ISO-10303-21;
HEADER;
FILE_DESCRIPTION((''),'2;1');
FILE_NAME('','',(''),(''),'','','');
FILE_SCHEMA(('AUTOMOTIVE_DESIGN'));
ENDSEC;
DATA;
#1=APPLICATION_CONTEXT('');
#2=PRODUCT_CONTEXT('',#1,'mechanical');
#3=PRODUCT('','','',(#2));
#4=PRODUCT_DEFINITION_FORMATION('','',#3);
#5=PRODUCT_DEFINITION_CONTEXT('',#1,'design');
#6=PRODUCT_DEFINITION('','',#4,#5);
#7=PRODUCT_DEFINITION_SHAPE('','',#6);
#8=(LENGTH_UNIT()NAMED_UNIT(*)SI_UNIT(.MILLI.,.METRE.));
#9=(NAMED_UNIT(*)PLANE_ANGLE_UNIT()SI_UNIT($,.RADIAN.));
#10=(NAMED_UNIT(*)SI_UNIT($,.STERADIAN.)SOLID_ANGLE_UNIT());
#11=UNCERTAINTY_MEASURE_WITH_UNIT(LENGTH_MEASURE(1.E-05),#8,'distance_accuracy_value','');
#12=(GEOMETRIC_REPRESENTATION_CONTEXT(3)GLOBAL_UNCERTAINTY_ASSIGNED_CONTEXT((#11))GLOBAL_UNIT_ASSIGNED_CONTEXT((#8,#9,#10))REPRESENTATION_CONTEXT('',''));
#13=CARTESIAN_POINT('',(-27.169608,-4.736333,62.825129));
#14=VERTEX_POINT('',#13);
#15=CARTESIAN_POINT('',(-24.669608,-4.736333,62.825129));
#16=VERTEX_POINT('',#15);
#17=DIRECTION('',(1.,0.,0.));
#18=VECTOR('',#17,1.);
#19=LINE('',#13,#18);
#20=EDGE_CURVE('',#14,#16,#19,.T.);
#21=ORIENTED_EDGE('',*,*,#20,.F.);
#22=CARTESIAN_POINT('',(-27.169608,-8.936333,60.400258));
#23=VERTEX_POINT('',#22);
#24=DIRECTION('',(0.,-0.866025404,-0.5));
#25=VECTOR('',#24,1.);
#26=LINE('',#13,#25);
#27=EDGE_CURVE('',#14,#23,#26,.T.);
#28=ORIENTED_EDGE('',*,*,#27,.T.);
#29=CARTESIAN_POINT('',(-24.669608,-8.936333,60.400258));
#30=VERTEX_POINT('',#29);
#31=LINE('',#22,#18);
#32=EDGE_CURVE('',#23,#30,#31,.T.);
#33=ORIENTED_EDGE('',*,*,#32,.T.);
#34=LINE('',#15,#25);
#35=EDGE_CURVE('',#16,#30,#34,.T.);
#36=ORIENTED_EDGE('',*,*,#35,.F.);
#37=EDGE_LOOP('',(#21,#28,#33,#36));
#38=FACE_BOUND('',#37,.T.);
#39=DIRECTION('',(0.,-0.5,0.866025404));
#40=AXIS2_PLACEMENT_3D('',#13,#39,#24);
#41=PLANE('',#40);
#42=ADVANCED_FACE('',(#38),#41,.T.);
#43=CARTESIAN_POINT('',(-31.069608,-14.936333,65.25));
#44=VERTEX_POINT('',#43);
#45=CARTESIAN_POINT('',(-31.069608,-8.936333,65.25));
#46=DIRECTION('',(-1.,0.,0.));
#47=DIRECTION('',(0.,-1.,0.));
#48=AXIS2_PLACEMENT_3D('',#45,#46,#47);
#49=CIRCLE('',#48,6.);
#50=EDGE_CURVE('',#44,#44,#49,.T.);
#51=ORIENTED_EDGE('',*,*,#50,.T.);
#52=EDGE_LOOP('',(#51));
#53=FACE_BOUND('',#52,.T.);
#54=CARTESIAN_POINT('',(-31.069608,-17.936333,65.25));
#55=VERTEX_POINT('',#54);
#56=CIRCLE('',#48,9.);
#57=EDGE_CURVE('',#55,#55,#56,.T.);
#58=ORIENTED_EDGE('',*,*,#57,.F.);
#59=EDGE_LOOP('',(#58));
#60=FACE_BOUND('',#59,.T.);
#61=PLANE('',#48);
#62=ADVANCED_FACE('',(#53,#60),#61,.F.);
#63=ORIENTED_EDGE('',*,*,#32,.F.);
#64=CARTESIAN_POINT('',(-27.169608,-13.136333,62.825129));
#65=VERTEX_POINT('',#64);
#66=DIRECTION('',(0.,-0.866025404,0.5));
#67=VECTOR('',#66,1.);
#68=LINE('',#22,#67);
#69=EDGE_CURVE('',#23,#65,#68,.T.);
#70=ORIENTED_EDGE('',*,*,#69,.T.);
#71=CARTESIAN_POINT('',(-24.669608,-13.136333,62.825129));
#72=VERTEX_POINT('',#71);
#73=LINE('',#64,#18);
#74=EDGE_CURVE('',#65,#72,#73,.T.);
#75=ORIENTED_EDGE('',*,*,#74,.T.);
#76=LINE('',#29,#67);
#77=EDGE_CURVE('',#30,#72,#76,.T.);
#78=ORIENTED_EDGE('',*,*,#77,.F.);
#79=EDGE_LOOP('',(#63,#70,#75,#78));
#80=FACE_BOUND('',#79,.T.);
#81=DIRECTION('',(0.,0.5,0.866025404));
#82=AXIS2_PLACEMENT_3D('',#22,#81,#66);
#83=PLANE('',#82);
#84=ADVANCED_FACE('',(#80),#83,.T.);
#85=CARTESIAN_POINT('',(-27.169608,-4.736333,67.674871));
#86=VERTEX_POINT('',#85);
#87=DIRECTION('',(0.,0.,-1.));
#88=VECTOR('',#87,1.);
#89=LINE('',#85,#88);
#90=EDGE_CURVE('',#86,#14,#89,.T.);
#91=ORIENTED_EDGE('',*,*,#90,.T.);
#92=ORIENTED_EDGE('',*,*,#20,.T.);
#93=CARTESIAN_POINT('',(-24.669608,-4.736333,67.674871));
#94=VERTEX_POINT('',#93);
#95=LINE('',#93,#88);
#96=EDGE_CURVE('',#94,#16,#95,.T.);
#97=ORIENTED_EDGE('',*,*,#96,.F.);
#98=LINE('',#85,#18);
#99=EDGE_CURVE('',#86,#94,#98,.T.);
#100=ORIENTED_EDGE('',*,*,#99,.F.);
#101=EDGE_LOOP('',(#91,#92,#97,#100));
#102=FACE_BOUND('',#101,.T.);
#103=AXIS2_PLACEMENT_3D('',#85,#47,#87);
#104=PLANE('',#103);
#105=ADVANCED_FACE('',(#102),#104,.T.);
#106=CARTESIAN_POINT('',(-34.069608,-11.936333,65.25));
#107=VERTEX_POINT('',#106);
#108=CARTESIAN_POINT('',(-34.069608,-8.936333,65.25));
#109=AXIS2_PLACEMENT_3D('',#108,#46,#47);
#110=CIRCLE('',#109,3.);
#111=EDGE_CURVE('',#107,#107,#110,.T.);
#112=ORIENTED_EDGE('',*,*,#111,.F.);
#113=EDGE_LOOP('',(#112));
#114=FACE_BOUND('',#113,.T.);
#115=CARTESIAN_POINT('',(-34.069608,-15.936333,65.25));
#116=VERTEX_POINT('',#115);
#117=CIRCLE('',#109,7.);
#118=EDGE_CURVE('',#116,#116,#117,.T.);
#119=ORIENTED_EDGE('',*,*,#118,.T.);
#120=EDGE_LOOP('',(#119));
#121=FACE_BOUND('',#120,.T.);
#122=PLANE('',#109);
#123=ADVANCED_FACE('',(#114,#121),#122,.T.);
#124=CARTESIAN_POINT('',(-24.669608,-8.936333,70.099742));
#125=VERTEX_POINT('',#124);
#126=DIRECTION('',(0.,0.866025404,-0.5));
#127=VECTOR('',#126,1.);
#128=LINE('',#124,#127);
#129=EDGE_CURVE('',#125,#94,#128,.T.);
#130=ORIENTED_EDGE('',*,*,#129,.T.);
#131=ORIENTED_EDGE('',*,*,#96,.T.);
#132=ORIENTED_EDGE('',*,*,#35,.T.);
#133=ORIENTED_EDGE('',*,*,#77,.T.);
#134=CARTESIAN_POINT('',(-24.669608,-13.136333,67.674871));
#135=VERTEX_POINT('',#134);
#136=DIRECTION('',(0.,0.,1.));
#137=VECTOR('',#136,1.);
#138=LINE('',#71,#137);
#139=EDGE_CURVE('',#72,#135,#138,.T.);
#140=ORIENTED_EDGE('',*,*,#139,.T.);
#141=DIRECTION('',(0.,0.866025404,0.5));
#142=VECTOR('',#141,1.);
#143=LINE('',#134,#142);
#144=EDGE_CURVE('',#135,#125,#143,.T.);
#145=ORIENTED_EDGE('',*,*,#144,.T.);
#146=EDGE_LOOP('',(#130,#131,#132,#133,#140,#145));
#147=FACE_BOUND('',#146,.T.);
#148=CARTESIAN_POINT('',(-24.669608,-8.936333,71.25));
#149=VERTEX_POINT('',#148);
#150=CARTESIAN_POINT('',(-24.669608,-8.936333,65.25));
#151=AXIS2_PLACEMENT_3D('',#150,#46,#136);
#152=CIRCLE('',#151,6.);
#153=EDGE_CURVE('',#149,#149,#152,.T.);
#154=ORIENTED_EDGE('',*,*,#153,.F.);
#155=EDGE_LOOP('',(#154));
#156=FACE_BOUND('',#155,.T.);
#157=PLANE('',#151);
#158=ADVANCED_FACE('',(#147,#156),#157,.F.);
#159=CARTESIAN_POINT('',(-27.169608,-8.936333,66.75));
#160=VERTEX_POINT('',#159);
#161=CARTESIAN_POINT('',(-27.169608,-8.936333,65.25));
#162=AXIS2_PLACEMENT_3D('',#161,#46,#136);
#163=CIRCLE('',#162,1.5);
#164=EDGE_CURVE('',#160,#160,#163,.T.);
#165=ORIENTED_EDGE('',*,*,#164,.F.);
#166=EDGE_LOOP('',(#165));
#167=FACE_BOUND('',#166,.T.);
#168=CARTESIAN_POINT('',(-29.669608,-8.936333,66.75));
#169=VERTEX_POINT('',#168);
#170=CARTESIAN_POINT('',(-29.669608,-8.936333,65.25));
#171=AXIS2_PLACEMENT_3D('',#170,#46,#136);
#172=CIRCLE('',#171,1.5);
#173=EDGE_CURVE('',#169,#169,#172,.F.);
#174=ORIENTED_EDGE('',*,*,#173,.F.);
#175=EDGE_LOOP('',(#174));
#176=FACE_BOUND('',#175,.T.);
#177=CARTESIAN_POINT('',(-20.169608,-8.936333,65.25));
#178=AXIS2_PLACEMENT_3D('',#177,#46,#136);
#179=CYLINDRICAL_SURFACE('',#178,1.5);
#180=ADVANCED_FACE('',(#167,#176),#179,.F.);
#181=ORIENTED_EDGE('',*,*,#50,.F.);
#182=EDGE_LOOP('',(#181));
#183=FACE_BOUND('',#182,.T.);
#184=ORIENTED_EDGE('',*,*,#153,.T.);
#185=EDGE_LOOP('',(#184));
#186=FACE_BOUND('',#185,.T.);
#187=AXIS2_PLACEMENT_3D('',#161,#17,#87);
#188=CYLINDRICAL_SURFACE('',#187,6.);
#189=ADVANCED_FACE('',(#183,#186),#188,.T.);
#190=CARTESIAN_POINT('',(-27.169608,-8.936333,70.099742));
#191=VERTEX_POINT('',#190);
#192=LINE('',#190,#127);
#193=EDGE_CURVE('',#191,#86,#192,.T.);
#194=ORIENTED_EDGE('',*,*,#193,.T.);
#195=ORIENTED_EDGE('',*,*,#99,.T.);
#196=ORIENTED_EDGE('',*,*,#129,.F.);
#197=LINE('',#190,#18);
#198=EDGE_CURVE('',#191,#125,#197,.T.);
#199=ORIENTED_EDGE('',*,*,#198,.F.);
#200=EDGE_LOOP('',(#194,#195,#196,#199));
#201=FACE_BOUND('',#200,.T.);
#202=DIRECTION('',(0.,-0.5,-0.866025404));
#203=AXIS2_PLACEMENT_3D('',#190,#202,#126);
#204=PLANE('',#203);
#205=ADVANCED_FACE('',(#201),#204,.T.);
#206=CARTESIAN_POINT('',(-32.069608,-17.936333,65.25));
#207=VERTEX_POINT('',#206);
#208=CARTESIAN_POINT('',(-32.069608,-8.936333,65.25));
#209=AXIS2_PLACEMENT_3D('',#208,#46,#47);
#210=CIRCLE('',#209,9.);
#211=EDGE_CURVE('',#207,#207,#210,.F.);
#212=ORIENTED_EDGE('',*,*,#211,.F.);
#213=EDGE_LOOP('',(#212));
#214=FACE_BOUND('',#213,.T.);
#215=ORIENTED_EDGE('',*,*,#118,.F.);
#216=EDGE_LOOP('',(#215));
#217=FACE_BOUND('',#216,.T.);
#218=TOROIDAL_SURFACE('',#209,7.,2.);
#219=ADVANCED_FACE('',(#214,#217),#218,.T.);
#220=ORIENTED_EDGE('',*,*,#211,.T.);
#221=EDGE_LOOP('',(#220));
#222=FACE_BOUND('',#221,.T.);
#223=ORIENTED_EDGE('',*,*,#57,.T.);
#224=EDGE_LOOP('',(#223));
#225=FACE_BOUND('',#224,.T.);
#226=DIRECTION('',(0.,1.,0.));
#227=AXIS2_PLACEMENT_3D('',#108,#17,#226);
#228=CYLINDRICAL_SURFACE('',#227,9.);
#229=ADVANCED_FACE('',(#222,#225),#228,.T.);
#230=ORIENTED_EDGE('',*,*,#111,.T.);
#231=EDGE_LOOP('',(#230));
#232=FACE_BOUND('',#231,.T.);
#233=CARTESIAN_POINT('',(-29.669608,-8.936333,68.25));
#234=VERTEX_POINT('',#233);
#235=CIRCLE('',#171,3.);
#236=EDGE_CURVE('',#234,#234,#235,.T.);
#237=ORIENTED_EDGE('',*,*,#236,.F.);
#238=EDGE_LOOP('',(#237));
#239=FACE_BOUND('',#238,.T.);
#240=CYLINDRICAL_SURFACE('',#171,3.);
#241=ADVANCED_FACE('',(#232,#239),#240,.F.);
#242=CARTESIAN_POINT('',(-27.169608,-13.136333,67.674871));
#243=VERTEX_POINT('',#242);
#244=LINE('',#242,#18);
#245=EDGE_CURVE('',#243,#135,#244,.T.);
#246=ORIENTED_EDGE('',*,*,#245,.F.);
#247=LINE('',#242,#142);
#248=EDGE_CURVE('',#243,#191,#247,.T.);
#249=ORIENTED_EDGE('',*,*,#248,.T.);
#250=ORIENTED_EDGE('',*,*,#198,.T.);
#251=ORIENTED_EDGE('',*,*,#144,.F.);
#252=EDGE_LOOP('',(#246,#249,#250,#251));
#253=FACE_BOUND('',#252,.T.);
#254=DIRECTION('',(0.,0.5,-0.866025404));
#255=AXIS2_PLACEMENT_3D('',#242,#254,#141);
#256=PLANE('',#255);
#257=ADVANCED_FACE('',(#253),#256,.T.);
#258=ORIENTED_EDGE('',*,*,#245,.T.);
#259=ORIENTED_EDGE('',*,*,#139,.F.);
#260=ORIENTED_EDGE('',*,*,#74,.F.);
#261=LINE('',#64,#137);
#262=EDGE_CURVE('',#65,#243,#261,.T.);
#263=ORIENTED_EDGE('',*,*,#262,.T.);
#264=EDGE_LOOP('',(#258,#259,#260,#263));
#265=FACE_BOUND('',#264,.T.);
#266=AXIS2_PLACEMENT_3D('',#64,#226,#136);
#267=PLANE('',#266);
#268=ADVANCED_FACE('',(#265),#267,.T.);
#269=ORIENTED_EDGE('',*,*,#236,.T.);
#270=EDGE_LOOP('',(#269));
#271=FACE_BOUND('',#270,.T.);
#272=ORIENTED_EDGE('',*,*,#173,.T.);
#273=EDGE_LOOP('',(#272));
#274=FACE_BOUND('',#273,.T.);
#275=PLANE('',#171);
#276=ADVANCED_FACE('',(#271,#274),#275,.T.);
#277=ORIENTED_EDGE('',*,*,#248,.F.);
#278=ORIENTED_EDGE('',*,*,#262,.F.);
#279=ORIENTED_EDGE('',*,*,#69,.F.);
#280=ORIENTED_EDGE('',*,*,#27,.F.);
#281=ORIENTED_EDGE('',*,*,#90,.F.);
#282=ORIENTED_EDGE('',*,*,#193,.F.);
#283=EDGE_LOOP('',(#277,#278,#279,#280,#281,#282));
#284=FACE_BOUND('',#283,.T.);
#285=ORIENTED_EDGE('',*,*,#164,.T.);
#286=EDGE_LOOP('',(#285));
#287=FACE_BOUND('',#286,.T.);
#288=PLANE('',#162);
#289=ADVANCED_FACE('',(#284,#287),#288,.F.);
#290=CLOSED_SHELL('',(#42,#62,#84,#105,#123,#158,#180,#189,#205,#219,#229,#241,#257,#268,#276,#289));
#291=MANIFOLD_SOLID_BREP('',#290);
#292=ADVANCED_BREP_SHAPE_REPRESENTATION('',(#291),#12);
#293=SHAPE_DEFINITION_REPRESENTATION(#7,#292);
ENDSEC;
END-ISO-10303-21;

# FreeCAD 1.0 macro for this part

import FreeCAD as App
import Part
import Sketcher

V = App.Vector
Q = App.Units.Quantity


def edges_at(feature, points):
    """Names of the edges that pass closest to the given points."""
    edges = feature.Shape.Edges
    near = lambda p: min(range(len(edges)), key=lambda i: edges[i].distToShape(Part.Vertex(*p))[0])
    return sorted({f"Edge{near(p) + 1}" for p in points})

doc = App.newDocument("Part")
params = doc.addObject("Spreadsheet::Sheet", "Params")
for row, (alias, value) in enumerate([
    ("sketch1_diameter", "12 mm"),
    ("pad1_length", "2.5 mm"),
    ("sketch2_diameter", "12 mm"),
    ("pad2_length", "5.5 mm"),
    ("sketch3_diameter", "3 mm"),
    ("pocket1_length", "12.5 mm"),
    ("sketch4_diameter", "6 mm"),
    ("pocket2_length", "3 mm"),
    ("sketch5_diameter", "18 mm"),
    ("sketch5_diameter2", "6 mm"),
    ("pad3_length", "3 mm"),
    ("fillet_radius", "2 mm"),
], start=1):
    params.set(f"A{row}", alias)
    params.set(f"B{row}", "=" + value)
    params.setAlias(f"B{row}", alias)

body = doc.addObject("PartDesign::Body", "Body")

sketch1 = doc.addObject("Sketcher::SketchObject", "Sketch")
body.addObject(sketch1)
sketch1.AttachmentSupport = (doc.YZ_Plane, [""])
sketch1.MapMode = "FlatFace"
sketch1.AttachmentOffset = App.Placement(V(0, 0, -24.669608), App.Rotation())
sketch1.addGeometry([
    Part.Circle(V(-8.936333, 65.25, 0), V(0, 0, 1), 6),
    Part.LineSegment(V(-4.736333, 62.825129, 0), V(-4.736333, 67.674871, 0)),
    Part.LineSegment(V(-4.736333, 67.674871, 0), V(-8.936333, 70.099742, 0)),
    Part.LineSegment(V(-8.936333, 70.099742, 0), V(-13.136333, 67.674871, 0)),
    Part.LineSegment(V(-13.136333, 67.674871, 0), V(-13.136333, 62.825129, 0)),
    Part.LineSegment(V(-13.136333, 62.825129, 0), V(-8.936333, 60.400258, 0)),
    Part.LineSegment(V(-8.936333, 60.400258, 0), V(-4.736333, 62.825129, 0)),
], False)
sketch1.addConstraint([
    Sketcher.Constraint("Coincident", 1, 2, 2, 1),
    Sketcher.Constraint("Coincident", 2, 2, 3, 1),
    Sketcher.Constraint("Coincident", 3, 2, 4, 1),
    Sketcher.Constraint("Coincident", 4, 2, 5, 1),
    Sketcher.Constraint("Coincident", 5, 2, 6, 1),
    Sketcher.Constraint("Coincident", 6, 2, 1, 1),
    Sketcher.Constraint("Vertical", 1),
    Sketcher.Constraint("Vertical", 4),
    Sketcher.Constraint("Parallel", 2, 5),
    Sketcher.Constraint("Parallel", 3, 6),
    Sketcher.Constraint("Horizontal", 1, 2, 3, 2),
    Sketcher.Constraint("Horizontal", 4, 2, 6, 2),
    Sketcher.Constraint("Vertical", 0, 3, 2, 2),
    Sketcher.Constraint("Vertical", 2, 2, 5, 2),
    Sketcher.Constraint("Diameter", 0, 12.0),
    Sketcher.Constraint("Angle", 2, Q("150 deg")),
    Sketcher.Constraint("DistanceX", 0, 3, 1, 2, 4.2),
    Sketcher.Constraint("DistanceY", -1, 1, 0, 3, 65.25),
    Sketcher.Constraint("DistanceY", 1, 1, 1, 2, 4.849742),
    Sketcher.Constraint("DistanceY", -1, 1, 1, 2, 67.674871),
    Sketcher.Constraint("DistanceX", 0, 3, -1, 1, 8.936333),
])
sketch1.setExpression("Constraints[14]", "Params.sketch1_diameter")
pad1 = doc.addObject("PartDesign::Pad", "Pad")
body.addObject(pad1)
pad1.Profile = sketch1
pad1.setExpression("Length", "Params.pad1_length")
pad1.Reversed = True

sketch2 = doc.addObject("Sketcher::SketchObject", "Sketch001")
body.addObject(sketch2)
sketch2.AttachmentSupport = (doc.YZ_Plane, [""])
sketch2.MapMode = "FlatFace"
sketch2.AttachmentOffset = App.Placement(V(0, 0, -27.169608), App.Rotation())
sketch2.addGeometry(Part.Circle(V(-8.936333, 65.25, 0), V(0, 0, 1), 6), False)
sketch2.addConstraint([
    Sketcher.Constraint("Diameter", 0, 12.0),
    Sketcher.Constraint("DistanceY", -1, 1, 0, 3, 65.25),
    Sketcher.Constraint("DistanceX", 0, 3, -1, 1, 8.936333),
])
sketch2.setExpression("Constraints[0]", "Params.sketch2_diameter")
pad2 = doc.addObject("PartDesign::Pad", "Pad001")
body.addObject(pad2)
pad2.Profile = sketch2
pad2.setExpression("Length", "Params.pad2_length")
pad2.Reversed = True

sketch3 = doc.addObject("Sketcher::SketchObject", "Sketch002")
body.addObject(sketch3)
sketch3.AttachmentSupport = (doc.YZ_Plane, [""])
sketch3.MapMode = "FlatFace"
sketch3.AttachmentOffset = App.Placement(V(0, 0, -32.669608), App.Rotation())
sketch3.addGeometry(Part.Circle(V(-8.936333, 65.25, 0), V(0, 0, 1), 1.5), False)
sketch3.addConstraint([
    Sketcher.Constraint("Diameter", 0, 3.0),
    Sketcher.Constraint("DistanceY", -1, 1, 0, 3, 65.25),
    Sketcher.Constraint("DistanceX", 0, 3, -1, 1, 8.936333),
])
sketch3.setExpression("Constraints[0]", "Params.sketch3_diameter")
pocket1 = doc.addObject("PartDesign::Pocket", "Pocket")
body.addObject(pocket1)
pocket1.Profile = sketch3
pocket1.setExpression("Length", "Params.pocket1_length")
pocket1.Reversed = True

sketch4 = doc.addObject("Sketcher::SketchObject", "Sketch003")
body.addObject(sketch4)
sketch4.AttachmentSupport = (doc.YZ_Plane, [""])
sketch4.MapMode = "FlatFace"
sketch4.AttachmentOffset = App.Placement(V(0, 0, -32.669608), App.Rotation())
sketch4.addGeometry(Part.Circle(V(-8.936333, 65.25, 0), V(0, 0, 1), 3), False)
sketch4.addConstraint([
    Sketcher.Constraint("Diameter", 0, 6.0),
    Sketcher.Constraint("DistanceY", -1, 1, 0, 3, 65.25),
    Sketcher.Constraint("DistanceX", 0, 3, -1, 1, 8.936333),
])
sketch4.setExpression("Constraints[0]", "Params.sketch4_diameter")
pocket2 = doc.addObject("PartDesign::Pocket", "Pocket001")
body.addObject(pocket2)
pocket2.Profile = sketch4
pocket2.setExpression("Length", "Params.pocket2_length")
pocket2.Reversed = True

sketch5 = doc.addObject("Sketcher::SketchObject", "Sketch004")
body.addObject(sketch5)
sketch5.AttachmentSupport = (doc.YZ_Plane, [""])
sketch5.MapMode = "FlatFace"
sketch5.AttachmentOffset = App.Placement(V(0, 0, -31.069608), App.Rotation())
sketch5.addGeometry([
    Part.Circle(V(-8.936333, 65.25, 0), V(0, 0, 1), 9),
    Part.Circle(V(-8.936333, 65.25, 0), V(0, 0, 1), 3),
], False)
sketch5.addConstraint([
    Sketcher.Constraint("Coincident", 1, 3, 0, 3),
    Sketcher.Constraint("Diameter", 0, 18.0),
    Sketcher.Constraint("Diameter", 1, 6.0),
    Sketcher.Constraint("DistanceY", -1, 1, 0, 3, 65.25),
    Sketcher.Constraint("DistanceX", 0, 3, -1, 1, 8.936333),
])
sketch5.setExpression("Constraints[1]", "Params.sketch5_diameter")
sketch5.setExpression("Constraints[2]", "Params.sketch5_diameter2")
pad3 = doc.addObject("PartDesign::Pad", "Pad002")
body.addObject(pad3)
pad3.Profile = sketch5
pad3.setExpression("Length", "Params.pad3_length")
pad3.Reversed = True
doc.recompute()

fillet = doc.addObject("PartDesign::Fillet", "Fillet")
body.addObject(fillet)
fillet.Base = (pad3, edges_at(pad3, [(-34.07, -8.936, 56.25)]))
fillet.setExpression("Radius", "Params.fillet_radius")

doc.recompute()
